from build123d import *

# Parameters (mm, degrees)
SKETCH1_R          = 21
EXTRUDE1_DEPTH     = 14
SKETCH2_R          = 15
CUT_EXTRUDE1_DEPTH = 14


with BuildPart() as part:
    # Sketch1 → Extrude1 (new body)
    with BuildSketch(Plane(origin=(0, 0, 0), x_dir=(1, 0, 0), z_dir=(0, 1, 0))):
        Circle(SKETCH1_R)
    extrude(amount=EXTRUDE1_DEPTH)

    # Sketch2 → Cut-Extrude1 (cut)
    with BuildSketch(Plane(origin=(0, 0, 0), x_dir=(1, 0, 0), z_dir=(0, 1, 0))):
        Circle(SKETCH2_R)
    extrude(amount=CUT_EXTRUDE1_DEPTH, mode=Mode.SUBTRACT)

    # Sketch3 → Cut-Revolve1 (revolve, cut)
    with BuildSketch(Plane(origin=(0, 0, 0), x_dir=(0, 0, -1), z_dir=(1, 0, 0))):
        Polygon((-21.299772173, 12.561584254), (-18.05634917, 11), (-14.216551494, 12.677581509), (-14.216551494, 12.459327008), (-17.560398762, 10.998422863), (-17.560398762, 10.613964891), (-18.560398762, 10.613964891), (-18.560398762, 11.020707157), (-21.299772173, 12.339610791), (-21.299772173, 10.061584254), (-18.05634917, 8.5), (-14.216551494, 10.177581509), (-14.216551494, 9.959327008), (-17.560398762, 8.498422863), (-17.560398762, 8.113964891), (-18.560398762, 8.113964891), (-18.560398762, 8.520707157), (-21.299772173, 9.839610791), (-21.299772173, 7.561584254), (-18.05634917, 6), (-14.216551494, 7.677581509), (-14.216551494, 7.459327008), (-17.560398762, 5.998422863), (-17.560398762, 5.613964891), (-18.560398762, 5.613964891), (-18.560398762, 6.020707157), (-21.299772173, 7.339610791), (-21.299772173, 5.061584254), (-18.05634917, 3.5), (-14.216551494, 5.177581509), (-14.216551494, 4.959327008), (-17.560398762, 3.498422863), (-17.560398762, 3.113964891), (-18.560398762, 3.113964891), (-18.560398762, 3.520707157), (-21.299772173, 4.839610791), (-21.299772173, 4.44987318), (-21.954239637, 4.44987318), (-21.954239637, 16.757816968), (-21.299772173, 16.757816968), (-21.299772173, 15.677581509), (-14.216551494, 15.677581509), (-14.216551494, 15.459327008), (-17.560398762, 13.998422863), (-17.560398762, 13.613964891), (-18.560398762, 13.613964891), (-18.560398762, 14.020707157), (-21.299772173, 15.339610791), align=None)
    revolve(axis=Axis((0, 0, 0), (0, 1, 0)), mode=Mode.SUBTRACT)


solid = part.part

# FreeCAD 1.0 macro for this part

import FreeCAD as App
import Part
import Sketcher
from FreeCAD import Vector
Q = App.Units.Quantity


def add_polygon(sketch, points):
    """Adds a closed chain of lines whose ends are joined by coincident constraints."""
    first, n = sketch.GeometryCount, len(points)
    for a, b in zip(points, points[1:] + points[:1]):
        sketch.addGeometry(Part.LineSegment(App.Vector(*a, 0), App.Vector(*b, 0)), False)
    for i in range(n):
        sketch.addConstraint(Sketcher.Constraint("Coincident", first + i, 2, first + (i + 1) % n, 1))

doc = App.newDocument("Part")
params = doc.addObject("Spreadsheet::Sheet", "Params")
for row, (alias, value) in enumerate([
    ("sketch1_diameter", "42 mm"),
    ("pad1_length", "14 mm"),
    ("sketch2_diameter", "30 mm"),
    ("pocket1_length", "14 mm"),
    ("sketch3_height", "1 mm"),
    ("groove_angle", "360 deg"),
], start=1):
    params.set(f"A{row}", alias)
    params.set(f"B{row}", "=" + value)
    params.setAlias(f"B{row}", alias)

body = doc.addObject("PartDesign::Body", "Body")
body.AllowCompound = True

# Sketch on XZ plane
sketch1 = body.newObject("Sketcher::SketchObject", "Sketch")
sketch1.AttachmentSupport = (doc.getObject("XZ_Plane"), [""])
sketch1.MapMode = "FlatFace"
sketch1.addGeometry(Part.Circle(Vector(0, 0, 0), Vector(0, 0, 1), 21), False)
sketch1.addConstraint(Sketcher.Constraint("Coincident", 0, 3, -1, 1))
sketch1.addConstraint(Sketcher.Constraint("Diameter", 0, Q("42 mm")))
sketch1.setExpression("Constraints[1]", "Params.sketch1_diameter")
pad1 = body.newObject("PartDesign::Pad", "Pad")
pad1.Profile = sketch1
pad1.setExpression("Length", "Params.pad1_length")
pad1.Reversed = True

# Sketch on XZ plane
sketch2 = body.newObject("Sketcher::SketchObject", "Sketch001")
sketch2.AttachmentSupport = (doc.getObject("XZ_Plane"), [""])
sketch2.MapMode = "FlatFace"
sketch2.addGeometry(Part.Circle(Vector(0, 0, 0), Vector(0, 0, 1), 15), False)
sketch2.addConstraint(Sketcher.Constraint("Coincident", 0, 3, -1, 1))
sketch2.addConstraint(Sketcher.Constraint("Diameter", 0, Q("30 mm")))
sketch2.setExpression("Constraints[1]", "Params.sketch2_diameter")
pocket1 = body.newObject("PartDesign::Pocket", "Pocket")
pocket1.Profile = sketch2
pocket1.setExpression("Length", "Params.pocket1_length")

# Sketch on YZ plane
sketch3 = body.newObject("Sketcher::SketchObject", "Sketch002")
sketch3.AttachmentSupport = (doc.getObject("YZ_Plane"), [""])
sketch3.MapMode = "FlatFace"
add_polygon(sketch3, [(11, 18.056349), (12.561584, 21.299772), (15.339611, 21.299772), (14.020707, 18.560399), (13.613965, 18.560399), (13.613965, 17.560399), (13.998423, 17.560399), (15.459327, 14.216551), (15.677582, 14.216551), (15.677582, 21.299772), (16.757817, 21.299772), (16.757817, 21.95424), (4.449873, 21.95424), (4.449873, 21.299772), (4.839611, 21.299772), (3.520707, 18.560399), (3.113965, 18.560399), (3.113965, 17.560399), (3.498423, 17.560399), (4.959327, 14.216551), (5.177582, 14.216551), (3.5, 18.056349), (5.061584, 21.299772), (7.339611, 21.299772), (6.020707, 18.560399), (5.613965, 18.560399), (5.613965, 17.560399), (5.998423, 17.560399), (7.459327, 14.216551), (7.677582, 14.216551), (6, 18.056349), (7.561584, 21.299772), (9.839611, 21.299772), (8.520707, 18.560399), (8.113965, 18.560399), (8.113965, 17.560399), (8.498423, 17.560399), (9.959327, 14.216551), (10.177582, 14.216551), (8.5, 18.056349), (10.061584, 21.299772), (12.339611, 21.299772), (11.020707, 18.560399), (10.613965, 18.560399), (10.613965, 17.560399), (10.998423, 17.560399), (12.459327, 14.216551), (12.677582, 14.216551)])  # lines 0-47
sketch3.addConstraint(Sketcher.Constraint("Horizontal", 1))
sketch3.addConstraint(Sketcher.Constraint("Horizontal", 3))
sketch3.addConstraint(Sketcher.Constraint("Vertical", 4))
sketch3.addConstraint(Sketcher.Constraint("Horizontal", 5))
sketch3.addConstraint(Sketcher.Constraint("Horizontal", 7))
sketch3.addConstraint(Sketcher.Constraint("Vertical", 8))
sketch3.addConstraint(Sketcher.Constraint("Horizontal", 9))
sketch3.addConstraint(Sketcher.Constraint("Vertical", 10))
sketch3.addConstraint(Sketcher.Constraint("Horizontal", 11))
sketch3.addConstraint(Sketcher.Constraint("Vertical", 12))
sketch3.addConstraint(Sketcher.Constraint("Horizontal", 13))
sketch3.addConstraint(Sketcher.Constraint("Horizontal", 15))
sketch3.addConstraint(Sketcher.Constraint("Vertical", 16))
sketch3.addConstraint(Sketcher.Constraint("Horizontal", 17))
sketch3.addConstraint(Sketcher.Constraint("Horizontal", 19))
sketch3.addConstraint(Sketcher.Constraint("Horizontal", 22))
sketch3.addConstraint(Sketcher.Constraint("Horizontal", 24))
sketch3.addConstraint(Sketcher.Constraint("Vertical", 25))
sketch3.addConstraint(Sketcher.Constraint("Horizontal", 26))
sketch3.addConstraint(Sketcher.Constraint("Horizontal", 28))
sketch3.addConstraint(Sketcher.Constraint("Horizontal", 31))
sketch3.addConstraint(Sketcher.Constraint("Horizontal", 33))
sketch3.addConstraint(Sketcher.Constraint("Vertical", 34))
sketch3.addConstraint(Sketcher.Constraint("Horizontal", 35))
sketch3.addConstraint(Sketcher.Constraint("Horizontal", 37))
sketch3.addConstraint(Sketcher.Constraint("Horizontal", 40))
sketch3.addConstraint(Sketcher.Constraint("Horizontal", 42))
sketch3.addConstraint(Sketcher.Constraint("Vertical", 43))
sketch3.addConstraint(Sketcher.Constraint("Horizontal", 44))
sketch3.addConstraint(Sketcher.Constraint("Horizontal", 46))
sketch3.addConstraint(Sketcher.Constraint("Parallel", 0, 2))
sketch3.addConstraint(Sketcher.Constraint("Parallel", 2, 14))
sketch3.addConstraint(Sketcher.Constraint("Parallel", 6, 18))
sketch3.addConstraint(Sketcher.Constraint("Parallel", 18, 20))
sketch3.addConstraint(Sketcher.Constraint("Parallel", 14, 21))
sketch3.addConstraint(Sketcher.Constraint("Parallel", 21, 23))
sketch3.addConstraint(Sketcher.Constraint("Parallel", 20, 27))
sketch3.addConstraint(Sketcher.Constraint("Parallel", 27, 29))
sketch3.addConstraint(Sketcher.Constraint("Parallel", 23, 30))
sketch3.addConstraint(Sketcher.Constraint("Parallel", 30, 32))
sketch3.addConstraint(Sketcher.Constraint("Parallel", 29, 36))
sketch3.addConstraint(Sketcher.Constraint("Parallel", 36, 38))
sketch3.addConstraint(Sketcher.Constraint("Parallel", 32, 39))
sketch3.addConstraint(Sketcher.Constraint("Parallel", 39, 41))
sketch3.addConstraint(Sketcher.Constraint("Parallel", 38, 45))
sketch3.addConstraint(Sketcher.Constraint("Parallel", 45, 47))
sketch3.addConstraint(Sketcher.Constraint("Horizontal", 1, 2, 8, 2))
sketch3.addConstraint(Sketcher.Constraint("Horizontal", 9, 2, 12, 2))
sketch3.addConstraint(Sketcher.Constraint("Horizontal", 3, 2, 14, 2))
sketch3.addConstraint(Sketcher.Constraint("Horizontal", 5, 2, 16, 2))
sketch3.addConstraint(Sketcher.Constraint("Horizontal", 7, 2, 18, 2))
sketch3.addConstraint(Sketcher.Constraint("Horizontal", 13, 2, 21, 2))
sketch3.addConstraint(Sketcher.Constraint("Horizontal", 15, 2, 23, 2))
sketch3.addConstraint(Sketcher.Constraint("Horizontal", 17, 2, 25, 2))
sketch3.addConstraint(Sketcher.Constraint("Horizontal", 19, 2, 27, 2))
sketch3.addConstraint(Sketcher.Constraint("Horizontal", 20, 2, 29, 2))
sketch3.addConstraint(Sketcher.Constraint("Horizontal", 22, 2, 30, 2))
sketch3.addConstraint(Sketcher.Constraint("Horizontal", 24, 2, 32, 2))
sketch3.addConstraint(Sketcher.Constraint("Horizontal", 26, 2, 34, 2))
sketch3.addConstraint(Sketcher.Constraint("Horizontal", 28, 2, 36, 2))
sketch3.addConstraint(Sketcher.Constraint("Horizontal", 29, 2, 38, 2))
sketch3.addConstraint(Sketcher.Constraint("Horizontal", 31, 2, 39, 2))
sketch3.addConstraint(Sketcher.Constraint("Horizontal", 33, 2, 41, 2))
sketch3.addConstraint(Sketcher.Constraint("Horizontal", 35, 2, 43, 2))
sketch3.addConstraint(Sketcher.Constraint("Horizontal", 37, 2, 45, 2))
sketch3.addConstraint(Sketcher.Constraint("Horizontal", 38, 2, 47, 2))
sketch3.addConstraint(Sketcher.Constraint("Equal", 3, 15))
sketch3.addConstraint(Sketcher.Constraint("Equal", 5, 17))
sketch3.addConstraint(Sketcher.Constraint("Equal", 7, 19))
sketch3.addConstraint(Sketcher.Constraint("Equal", 15, 24))
sketch3.addConstraint(Sketcher.Constraint("Equal", 17, 26))
sketch3.addConstraint(Sketcher.Constraint("Equal", 19, 28))
sketch3.addConstraint(Sketcher.Constraint("Equal", 22, 31))
sketch3.addConstraint(Sketcher.Constraint("Equal", 24, 33))
sketch3.addConstraint(Sketcher.Constraint("Equal", 26, 35))
sketch3.addConstraint(Sketcher.Constraint("Equal", 28, 37))
sketch3.addConstraint(Sketcher.Constraint("Equal", 31, 40))
sketch3.addConstraint(Sketcher.Constraint("Equal", 33, 42))
sketch3.addConstraint(Sketcher.Constraint("Equal", 35, 44))
sketch3.addConstraint(Sketcher.Constraint("Equal", 37, 46))
sketch3.addConstraint(Sketcher.Constraint("DistanceY", 4, 2, 4, 1, Q("1 mm")))
sketch3.addConstraint(Sketcher.Constraint("DistanceX", -1, 1, 29, 2, Q("6 mm")))
sketch3.addConstraint(Sketcher.Constraint("DistanceX", -1, 1, 47, 2, Q("11 mm")))
sketch3.addConstraint(Sketcher.Constraint("DistanceX", 40, 2, 1, 2, Q("3 mm")))
sketch3.addConstraint(Sketcher.Constraint("DistanceY", 8, 1, 8, 2, Q("7.083221 mm")))
sketch3.addConstraint(Sketcher.Constraint("DistanceY", -1, 1, 2, 2, Q("18.560399 mm")))
sketch3.addConstraint(Sketcher.Constraint("Distance", 0, Q("3.599769 mm")))
sketch3.addConstraint(Sketcher.Constraint("Distance", 2, Q("3.040341 mm")))
sketch3.addConstraint(Sketcher.Constraint("Distance", 6, Q("3.649049 mm")))
sketch3.addConstraint(Sketcher.Constraint("DistanceX", 1, 1, 1, 2, Q("2.778027 mm")))
sketch3.addConstraint(Sketcher.Constraint("DistanceX", 3, 2, 3, 1, Q("0.406742 mm")))
sketch3.addConstraint(Sketcher.Constraint("DistanceX", 5, 1, 5, 2, Q("0.384458 mm")))
sketch3.addConstraint(Sketcher.Constraint("DistanceX", 7, 1, 7, 2, Q("0.218255 mm")))
sketch3.addConstraint(Sketcher.Constraint("DistanceX", 9, 1, 9, 2, Q("1.080235 mm")))
sketch3.addConstraint(Sketcher.Constraint("DistanceX", 11, 2, 11, 1, Q("12.307944 mm")))
sketch3.addConstraint(Sketcher.Constraint("DistanceY", 10, 1, 10, 2, Q("0.654467 mm")))
sketch3.setExpression("Constraints[128]", "Params.sketch3_height")
groove = body.newObject("PartDesign::Groove", "Groove")
groove.Profile = sketch3
groove.ReferenceAxis = (sketch3, ["H_Axis"])
groove.setExpression("Angle", "Params.groove_angle")

doc.recompute()
